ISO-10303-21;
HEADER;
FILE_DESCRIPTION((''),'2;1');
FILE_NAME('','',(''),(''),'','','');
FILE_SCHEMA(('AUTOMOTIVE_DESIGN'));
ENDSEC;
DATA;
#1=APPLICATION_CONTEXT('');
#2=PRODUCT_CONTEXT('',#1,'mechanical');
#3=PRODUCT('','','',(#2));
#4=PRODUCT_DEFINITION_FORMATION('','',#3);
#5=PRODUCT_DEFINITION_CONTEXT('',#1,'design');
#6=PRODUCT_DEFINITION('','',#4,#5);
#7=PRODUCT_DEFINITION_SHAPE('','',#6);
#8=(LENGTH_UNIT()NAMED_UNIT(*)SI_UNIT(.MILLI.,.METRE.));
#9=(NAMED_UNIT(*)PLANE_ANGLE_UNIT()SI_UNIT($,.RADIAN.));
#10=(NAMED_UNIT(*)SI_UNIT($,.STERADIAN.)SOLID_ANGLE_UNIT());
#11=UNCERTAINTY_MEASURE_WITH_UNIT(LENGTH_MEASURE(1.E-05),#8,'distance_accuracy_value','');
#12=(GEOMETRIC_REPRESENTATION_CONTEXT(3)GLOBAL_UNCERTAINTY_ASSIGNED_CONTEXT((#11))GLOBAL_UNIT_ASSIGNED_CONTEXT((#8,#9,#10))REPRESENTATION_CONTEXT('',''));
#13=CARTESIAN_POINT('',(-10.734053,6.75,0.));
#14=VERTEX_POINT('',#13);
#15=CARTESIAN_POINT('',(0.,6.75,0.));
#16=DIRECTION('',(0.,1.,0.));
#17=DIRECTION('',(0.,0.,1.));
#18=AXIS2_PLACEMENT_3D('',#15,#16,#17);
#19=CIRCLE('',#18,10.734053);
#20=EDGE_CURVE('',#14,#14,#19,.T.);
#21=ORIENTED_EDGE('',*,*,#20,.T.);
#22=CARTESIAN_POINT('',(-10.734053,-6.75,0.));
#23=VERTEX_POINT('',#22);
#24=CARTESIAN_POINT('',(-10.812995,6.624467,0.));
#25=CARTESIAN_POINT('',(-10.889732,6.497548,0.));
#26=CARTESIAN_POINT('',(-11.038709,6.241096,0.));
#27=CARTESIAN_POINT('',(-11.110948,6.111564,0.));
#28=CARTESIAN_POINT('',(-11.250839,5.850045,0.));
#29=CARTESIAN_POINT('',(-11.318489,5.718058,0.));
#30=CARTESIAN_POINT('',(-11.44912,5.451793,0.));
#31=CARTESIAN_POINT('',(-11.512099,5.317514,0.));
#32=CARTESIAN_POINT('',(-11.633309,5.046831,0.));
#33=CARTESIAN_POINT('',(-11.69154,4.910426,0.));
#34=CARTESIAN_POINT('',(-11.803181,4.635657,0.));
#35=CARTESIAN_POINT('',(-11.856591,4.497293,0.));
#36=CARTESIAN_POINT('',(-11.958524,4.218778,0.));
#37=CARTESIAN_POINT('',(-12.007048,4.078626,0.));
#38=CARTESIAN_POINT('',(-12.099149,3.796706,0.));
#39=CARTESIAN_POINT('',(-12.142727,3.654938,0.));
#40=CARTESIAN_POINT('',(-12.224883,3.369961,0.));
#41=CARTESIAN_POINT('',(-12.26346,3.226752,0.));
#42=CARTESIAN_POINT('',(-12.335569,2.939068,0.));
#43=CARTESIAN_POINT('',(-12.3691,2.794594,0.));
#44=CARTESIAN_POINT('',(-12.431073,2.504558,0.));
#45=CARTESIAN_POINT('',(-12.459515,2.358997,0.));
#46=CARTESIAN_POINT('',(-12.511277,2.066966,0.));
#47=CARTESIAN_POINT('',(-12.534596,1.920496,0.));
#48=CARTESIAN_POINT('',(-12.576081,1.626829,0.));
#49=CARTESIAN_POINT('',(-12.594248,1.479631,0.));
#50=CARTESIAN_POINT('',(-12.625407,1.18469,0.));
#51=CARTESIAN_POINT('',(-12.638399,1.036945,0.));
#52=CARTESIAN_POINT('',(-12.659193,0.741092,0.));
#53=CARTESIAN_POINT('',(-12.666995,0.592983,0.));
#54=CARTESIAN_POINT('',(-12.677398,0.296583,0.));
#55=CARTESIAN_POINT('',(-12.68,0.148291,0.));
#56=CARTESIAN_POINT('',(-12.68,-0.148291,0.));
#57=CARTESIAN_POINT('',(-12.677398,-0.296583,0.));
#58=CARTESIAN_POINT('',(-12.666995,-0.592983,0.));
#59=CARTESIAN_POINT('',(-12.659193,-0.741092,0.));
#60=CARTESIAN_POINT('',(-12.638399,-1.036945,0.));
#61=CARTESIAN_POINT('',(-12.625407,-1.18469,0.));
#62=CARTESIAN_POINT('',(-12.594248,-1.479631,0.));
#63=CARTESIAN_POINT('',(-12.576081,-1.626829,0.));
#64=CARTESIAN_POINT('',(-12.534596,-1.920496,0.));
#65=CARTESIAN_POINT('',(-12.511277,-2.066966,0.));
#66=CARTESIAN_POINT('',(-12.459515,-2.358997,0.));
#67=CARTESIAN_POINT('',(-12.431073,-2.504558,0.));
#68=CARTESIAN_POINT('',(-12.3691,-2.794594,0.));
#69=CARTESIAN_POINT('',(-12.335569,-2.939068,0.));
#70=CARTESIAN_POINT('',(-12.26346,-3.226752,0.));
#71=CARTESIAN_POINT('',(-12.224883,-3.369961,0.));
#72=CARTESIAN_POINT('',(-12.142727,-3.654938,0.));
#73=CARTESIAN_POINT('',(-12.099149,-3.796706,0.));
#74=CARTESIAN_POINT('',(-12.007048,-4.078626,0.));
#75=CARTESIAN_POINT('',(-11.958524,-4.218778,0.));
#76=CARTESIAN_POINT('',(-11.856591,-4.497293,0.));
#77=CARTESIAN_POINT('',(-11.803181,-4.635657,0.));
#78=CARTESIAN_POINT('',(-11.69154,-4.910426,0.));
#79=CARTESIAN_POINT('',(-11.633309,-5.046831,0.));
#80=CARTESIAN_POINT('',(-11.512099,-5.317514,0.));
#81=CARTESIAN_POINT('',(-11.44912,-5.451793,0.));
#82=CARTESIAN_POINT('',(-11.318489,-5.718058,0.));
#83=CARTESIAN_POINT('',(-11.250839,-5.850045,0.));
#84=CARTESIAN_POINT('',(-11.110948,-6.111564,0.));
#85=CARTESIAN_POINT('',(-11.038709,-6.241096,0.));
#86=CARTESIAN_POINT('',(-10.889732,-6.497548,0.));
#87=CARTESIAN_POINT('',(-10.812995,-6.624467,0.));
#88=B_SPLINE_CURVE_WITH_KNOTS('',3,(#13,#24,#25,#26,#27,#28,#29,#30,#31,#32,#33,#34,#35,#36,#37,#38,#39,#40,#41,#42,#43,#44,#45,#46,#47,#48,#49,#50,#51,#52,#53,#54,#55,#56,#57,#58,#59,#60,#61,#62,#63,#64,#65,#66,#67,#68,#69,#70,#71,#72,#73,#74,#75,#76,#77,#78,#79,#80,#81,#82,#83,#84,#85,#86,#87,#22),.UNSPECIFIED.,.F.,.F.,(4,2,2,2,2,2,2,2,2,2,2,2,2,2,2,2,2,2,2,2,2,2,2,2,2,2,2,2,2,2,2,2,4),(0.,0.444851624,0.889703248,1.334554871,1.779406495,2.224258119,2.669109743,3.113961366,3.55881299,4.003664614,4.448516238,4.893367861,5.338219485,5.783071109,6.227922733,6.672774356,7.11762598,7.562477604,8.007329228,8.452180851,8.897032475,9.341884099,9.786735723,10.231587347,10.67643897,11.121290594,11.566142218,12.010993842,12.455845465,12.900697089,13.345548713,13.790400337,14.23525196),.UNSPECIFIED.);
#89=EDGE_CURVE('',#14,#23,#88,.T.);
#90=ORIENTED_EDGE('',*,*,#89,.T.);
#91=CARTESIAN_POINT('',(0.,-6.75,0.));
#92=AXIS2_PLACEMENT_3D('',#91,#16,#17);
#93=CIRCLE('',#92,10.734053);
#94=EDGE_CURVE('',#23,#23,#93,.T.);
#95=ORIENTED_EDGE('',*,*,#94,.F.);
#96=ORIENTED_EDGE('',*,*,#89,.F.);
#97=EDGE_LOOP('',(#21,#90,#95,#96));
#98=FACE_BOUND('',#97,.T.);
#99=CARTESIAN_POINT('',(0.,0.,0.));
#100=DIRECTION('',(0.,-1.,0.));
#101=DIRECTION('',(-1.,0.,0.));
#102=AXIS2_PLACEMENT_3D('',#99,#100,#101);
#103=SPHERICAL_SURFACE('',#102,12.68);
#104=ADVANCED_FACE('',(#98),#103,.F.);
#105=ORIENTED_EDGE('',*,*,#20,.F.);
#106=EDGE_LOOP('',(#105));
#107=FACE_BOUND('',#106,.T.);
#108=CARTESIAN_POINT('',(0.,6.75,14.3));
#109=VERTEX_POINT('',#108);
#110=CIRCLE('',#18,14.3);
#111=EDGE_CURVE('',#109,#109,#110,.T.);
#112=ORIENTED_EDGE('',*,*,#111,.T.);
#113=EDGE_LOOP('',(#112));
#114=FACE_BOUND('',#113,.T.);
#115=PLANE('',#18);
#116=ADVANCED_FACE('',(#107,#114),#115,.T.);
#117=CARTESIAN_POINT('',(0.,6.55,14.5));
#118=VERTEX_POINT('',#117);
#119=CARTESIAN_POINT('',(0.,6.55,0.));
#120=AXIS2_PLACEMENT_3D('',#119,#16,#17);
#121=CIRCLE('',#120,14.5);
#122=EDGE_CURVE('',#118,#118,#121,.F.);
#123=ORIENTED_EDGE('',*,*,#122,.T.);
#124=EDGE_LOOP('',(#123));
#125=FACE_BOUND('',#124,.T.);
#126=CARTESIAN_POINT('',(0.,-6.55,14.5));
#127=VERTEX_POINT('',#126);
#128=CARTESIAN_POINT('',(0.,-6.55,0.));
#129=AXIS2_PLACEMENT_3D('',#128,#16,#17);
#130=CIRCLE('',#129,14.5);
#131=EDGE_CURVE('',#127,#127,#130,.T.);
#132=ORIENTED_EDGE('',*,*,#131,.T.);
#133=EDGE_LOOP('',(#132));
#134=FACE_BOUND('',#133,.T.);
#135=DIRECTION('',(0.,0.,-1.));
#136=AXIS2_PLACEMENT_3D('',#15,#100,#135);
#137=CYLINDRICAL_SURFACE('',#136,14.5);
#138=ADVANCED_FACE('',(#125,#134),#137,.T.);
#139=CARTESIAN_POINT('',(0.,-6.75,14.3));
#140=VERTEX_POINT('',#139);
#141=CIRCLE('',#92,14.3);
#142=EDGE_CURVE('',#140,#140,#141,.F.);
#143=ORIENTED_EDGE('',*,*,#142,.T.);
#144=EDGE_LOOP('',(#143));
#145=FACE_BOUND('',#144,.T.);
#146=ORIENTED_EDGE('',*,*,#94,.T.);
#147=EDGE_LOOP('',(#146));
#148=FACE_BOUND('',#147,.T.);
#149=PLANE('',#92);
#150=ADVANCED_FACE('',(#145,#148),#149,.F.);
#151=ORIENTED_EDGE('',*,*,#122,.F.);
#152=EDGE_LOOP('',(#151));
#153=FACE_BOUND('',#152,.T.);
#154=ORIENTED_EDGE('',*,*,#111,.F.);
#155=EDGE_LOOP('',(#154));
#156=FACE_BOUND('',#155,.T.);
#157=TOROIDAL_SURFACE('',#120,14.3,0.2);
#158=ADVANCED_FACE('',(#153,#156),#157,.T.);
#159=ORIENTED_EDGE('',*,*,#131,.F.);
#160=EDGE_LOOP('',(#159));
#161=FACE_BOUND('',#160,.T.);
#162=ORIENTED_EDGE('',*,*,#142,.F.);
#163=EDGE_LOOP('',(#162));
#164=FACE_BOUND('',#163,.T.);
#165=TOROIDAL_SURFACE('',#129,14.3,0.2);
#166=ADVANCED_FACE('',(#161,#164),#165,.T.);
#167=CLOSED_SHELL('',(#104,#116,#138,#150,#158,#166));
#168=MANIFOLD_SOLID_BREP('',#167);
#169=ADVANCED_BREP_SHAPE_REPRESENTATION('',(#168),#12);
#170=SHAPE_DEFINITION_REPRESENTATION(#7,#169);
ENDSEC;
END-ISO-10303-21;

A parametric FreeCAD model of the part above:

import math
import FreeCAD as App
import Part
import Sketcher
Q = App.Units.Quantity


def edges_at(feature, points):
    """Names of the edges that pass closest to the given points."""
    edges = feature.Shape.Edges
    near = lambda p: min(range(len(edges)), key=lambda i: edges[i].distToShape(Part.Vertex(*p))[0])
    return sorted({f"Edge{near(p) + 1}" for p in points})

doc = App.newDocument("Part")
body = doc.addObject("PartDesign::Body", "Body")

# Sketch on XZ plane
sketch1 = body.newObject("Sketcher::SketchObject", "Sketch")
sketch1.AttachmentSupport = (doc.getObject("XZ_Plane"), [""])
sketch1.MapMode = "FlatFace"
sketch1.addGeometry(Part.Circle(App.Vector(0, 0, 0), App.Vector(0, 0, 1), 14.5), False)
sketch1.addConstraint(Sketcher.Constraint("Coincident", 0, 3, -1, 1))
sketch1.addConstraint(Sketcher.Constraint("Diameter", 0, Q("29 mm")))
pad1 = body.newObject("PartDesign::Pad", "Pad")
pad1.Profile = sketch1
pad1.Length = 13.5
pad1.Midplane = True

# Sketch on XY plane
sketch2 = body.newObject("Sketcher::SketchObject", "Sketch001")
sketch2.AttachmentSupport = (doc.getObject("XY_Plane"), [""])
sketch2.MapMode = "FlatFace"
sketch2.addGeometry(Part.LineSegment(App.Vector(0, 12.68, 0), App.Vector(0, -12.68, 0)), False)
sketch2.addGeometry(Part.ArcOfCircle(Part.Circle(App.Vector(0, 0, 0), App.Vector(0, 0, 1), 12.68), math.radians(-90), math.radians(90)), False)
sketch2.addConstraint(Sketcher.Constraint("Coincident", 0, 1, 1, 2))
sketch2.addConstraint(Sketcher.Constraint("Coincident", 1, 1, 0, 2))
sketch2.addConstraint(Sketcher.Constraint("Vertical", 0))
sketch2.addConstraint(Sketcher.Constraint("Coincident", 1, 3, -1, 1))
sketch2.addConstraint(Sketcher.Constraint("PointOnObject", 0, 1, -2))
sketch2.addConstraint(Sketcher.Constraint("Radius", 1, Q("12.68 mm")))
groove = body.newObject("PartDesign::Groove", "Groove")
groove.Profile = sketch2
groove.ReferenceAxis = (sketch2, ["V_Axis"])
groove.Angle = 360
doc.recompute()

fillet = body.newObject("PartDesign::Fillet", "Fillet")
fillet.Base = (groove, edges_at(groove, [(0, -6.75, -14.5), (0, 6.75, -14.5)]))
fillet.Radius = 0.2

doc.recompute()
